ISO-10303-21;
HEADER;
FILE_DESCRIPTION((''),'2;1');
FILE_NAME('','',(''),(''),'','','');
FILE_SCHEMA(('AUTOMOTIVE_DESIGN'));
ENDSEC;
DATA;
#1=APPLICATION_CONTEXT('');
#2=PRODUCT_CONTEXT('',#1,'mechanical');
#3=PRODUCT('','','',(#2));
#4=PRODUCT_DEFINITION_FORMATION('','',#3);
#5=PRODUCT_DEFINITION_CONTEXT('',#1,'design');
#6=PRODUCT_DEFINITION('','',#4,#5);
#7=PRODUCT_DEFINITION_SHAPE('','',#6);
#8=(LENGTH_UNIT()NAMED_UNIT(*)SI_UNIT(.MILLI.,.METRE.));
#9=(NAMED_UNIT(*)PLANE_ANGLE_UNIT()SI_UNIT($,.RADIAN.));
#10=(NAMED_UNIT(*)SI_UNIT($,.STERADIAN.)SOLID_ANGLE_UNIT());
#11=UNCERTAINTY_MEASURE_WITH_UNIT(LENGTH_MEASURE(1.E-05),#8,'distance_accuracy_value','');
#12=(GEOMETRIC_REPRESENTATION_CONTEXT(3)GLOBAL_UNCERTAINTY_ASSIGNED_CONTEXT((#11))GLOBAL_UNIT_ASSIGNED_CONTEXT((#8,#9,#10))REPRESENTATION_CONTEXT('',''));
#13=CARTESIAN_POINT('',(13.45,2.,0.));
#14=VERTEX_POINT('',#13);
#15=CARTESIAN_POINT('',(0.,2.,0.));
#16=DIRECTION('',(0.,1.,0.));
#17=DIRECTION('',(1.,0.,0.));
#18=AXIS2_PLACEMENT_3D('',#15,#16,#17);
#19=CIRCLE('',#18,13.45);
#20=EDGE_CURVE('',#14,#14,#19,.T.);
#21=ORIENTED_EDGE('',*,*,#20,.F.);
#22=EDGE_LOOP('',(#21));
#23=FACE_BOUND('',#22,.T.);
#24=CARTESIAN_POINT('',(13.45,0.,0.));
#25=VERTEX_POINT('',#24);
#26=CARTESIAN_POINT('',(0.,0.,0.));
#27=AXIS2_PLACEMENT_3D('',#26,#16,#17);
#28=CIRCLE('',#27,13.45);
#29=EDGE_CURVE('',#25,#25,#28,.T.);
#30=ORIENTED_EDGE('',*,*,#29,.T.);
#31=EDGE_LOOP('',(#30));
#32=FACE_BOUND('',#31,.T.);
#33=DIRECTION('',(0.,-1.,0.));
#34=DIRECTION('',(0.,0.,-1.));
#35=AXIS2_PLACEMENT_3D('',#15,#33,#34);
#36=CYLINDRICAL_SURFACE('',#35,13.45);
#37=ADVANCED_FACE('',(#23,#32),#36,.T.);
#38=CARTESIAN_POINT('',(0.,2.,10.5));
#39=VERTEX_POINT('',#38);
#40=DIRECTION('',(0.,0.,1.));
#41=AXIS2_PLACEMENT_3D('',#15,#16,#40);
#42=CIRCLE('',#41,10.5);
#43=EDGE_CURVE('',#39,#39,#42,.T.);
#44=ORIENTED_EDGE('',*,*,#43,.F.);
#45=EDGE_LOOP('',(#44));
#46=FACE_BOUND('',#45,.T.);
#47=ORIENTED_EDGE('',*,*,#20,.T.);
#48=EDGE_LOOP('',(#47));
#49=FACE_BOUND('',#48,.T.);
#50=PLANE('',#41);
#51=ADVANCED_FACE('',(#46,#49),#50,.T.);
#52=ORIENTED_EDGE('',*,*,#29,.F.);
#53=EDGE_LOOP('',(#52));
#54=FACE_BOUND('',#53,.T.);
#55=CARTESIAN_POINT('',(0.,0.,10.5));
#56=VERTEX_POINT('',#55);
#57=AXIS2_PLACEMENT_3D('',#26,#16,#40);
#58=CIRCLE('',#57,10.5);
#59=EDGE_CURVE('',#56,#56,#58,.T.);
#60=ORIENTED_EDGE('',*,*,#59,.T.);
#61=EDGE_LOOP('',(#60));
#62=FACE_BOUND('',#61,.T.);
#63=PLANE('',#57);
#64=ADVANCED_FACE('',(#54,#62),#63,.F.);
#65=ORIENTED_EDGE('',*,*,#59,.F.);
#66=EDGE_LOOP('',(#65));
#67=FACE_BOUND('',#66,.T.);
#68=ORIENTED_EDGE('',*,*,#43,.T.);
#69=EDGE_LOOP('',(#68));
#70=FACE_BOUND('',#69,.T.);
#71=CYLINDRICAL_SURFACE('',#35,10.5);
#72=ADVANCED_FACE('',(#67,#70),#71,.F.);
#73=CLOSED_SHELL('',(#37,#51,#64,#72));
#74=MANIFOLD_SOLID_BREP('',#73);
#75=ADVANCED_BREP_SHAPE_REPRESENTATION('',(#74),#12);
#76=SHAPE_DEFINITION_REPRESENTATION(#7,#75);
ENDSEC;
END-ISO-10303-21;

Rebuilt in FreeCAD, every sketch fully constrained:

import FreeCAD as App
import Part
import Sketcher
from FreeCAD import Vector

doc = App.newDocument("Part")
body = doc.addObject("PartDesign::Body", "Body")

# Sketch on XZ plane
sketch1 = body.newObject("Sketcher::SketchObject", "Sketch")
sketch1.AttachmentSupport = (doc.getObject("XZ_Plane"), [""])
sketch1.MapMode = "FlatFace"
sketch1.addGeometry([
    Part.Circle(Vector(0, 0, 0), Vector(0, 0, 1), 13),
    Part.Circle(Vector(0, 0, 0), Vector(0, 0, 1), 10),
], False)
sketch1.addConstraint([
    Sketcher.Constraint("Coincident", 0, 3, -1, 1),
    Sketcher.Constraint("Coincident", 1, 3, -1, 1),
    Sketcher.Constraint("Diameter", 1, 21.0),
    Sketcher.Constraint("Diameter", 0, 26.9),
])
pad1 = body.newObject("PartDesign::Pad", "Pad")
pad1.Profile = sketch1
pad1.Length = 2
pad1.Reversed = True

doc.recompute()
